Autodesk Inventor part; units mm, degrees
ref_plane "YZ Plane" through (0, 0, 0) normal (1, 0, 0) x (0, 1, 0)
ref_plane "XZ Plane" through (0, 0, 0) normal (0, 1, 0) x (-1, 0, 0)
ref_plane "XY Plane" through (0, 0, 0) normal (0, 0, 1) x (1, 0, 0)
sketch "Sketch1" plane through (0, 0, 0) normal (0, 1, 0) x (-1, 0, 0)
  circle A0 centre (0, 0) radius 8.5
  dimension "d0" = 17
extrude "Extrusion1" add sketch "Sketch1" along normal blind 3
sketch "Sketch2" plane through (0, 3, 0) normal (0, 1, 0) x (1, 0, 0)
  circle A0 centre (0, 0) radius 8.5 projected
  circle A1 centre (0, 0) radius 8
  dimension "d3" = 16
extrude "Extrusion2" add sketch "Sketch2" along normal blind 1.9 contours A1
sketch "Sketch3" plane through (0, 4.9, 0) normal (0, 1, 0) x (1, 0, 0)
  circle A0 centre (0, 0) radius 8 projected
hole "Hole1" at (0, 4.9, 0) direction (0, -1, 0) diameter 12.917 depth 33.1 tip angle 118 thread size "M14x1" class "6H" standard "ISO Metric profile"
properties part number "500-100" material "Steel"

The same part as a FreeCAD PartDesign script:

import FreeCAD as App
import Part
import Sketcher
Q = App.Units.Quantity

doc = App.newDocument("Part")
body = doc.addObject("PartDesign::Body", "Body")

# Sketch on XZ plane
sketch1 = body.newObject("Sketcher::SketchObject", "Sketch")
sketch1.AttachmentSupport = (doc.getObject("XZ_Plane"), [""])
sketch1.MapMode = "FlatFace"
sketch1.addGeometry(Part.Circle(App.Vector(0, 0, 0), App.Vector(0, 0, 1), 8), False)
sketch1.addConstraint(Sketcher.Constraint("Coincident", 0, 3, -1, 1))
sketch1.addConstraint(Sketcher.Constraint("Diameter", 0, Q("17 mm")))
pad1 = body.newObject("PartDesign::Pad", "Pad")
pad1.Profile = sketch1
pad1.Length = 3
pad1.Reversed = True

# Sketch on XZ plane
sketch2 = body.newObject("Sketcher::SketchObject", "Sketch001")
sketch2.AttachmentSupport = (doc.getObject("XZ_Plane"), [""])
sketch2.MapMode = "FlatFace"
sketch2.AttachmentOffset = App.Placement(App.Vector(0, 0, -3), App.Rotation())
sketch2.addGeometry(Part.Circle(App.Vector(0, 0, 0), App.Vector(0, 0, 1), 8), False)
sketch2.addConstraint(Sketcher.Constraint("Coincident", 0, 3, -1, 1))
sketch2.addConstraint(Sketcher.Constraint("Diameter", 0, Q("16 mm")))
pad2 = body.newObject("PartDesign::Pad", "Pad001")
pad2.Profile = sketch2
pad2.Length = 1.9
pad2.Reversed = True

# Sketch on XZ plane
sketch3 = body.newObject("Sketcher::SketchObject", "Sketch002")
sketch3.AttachmentSupport = (doc.getObject("XZ_Plane"), [""])
sketch3.MapMode = "FlatFace"
sketch3.AttachmentOffset = App.Placement(App.Vector(0, 0, -4.9), App.Rotation())
sketch3.addGeometry(Part.Circle(App.Vector(0, 0, 0), App.Vector(0, 0, 1), 6), False)
sketch3.addConstraint(Sketcher.Constraint("Coincident", 0, 3, -1, 1))
sketch3.addConstraint(Sketcher.Constraint("Diameter", 0, Q("12.917 mm")))
doc.recompute()
hole = body.newObject("PartDesign::Hole", "Hole")
hole.Profile = sketch3
hole.ThreadType = "None"
hole.Diameter = 12.917
hole.DepthType = "Dimension"
hole.Depth = 33.1
hole.DrillPoint = "Angled"
hole.DrillPointAngle = 118
hole.Reversed = True

doc.recompute()
